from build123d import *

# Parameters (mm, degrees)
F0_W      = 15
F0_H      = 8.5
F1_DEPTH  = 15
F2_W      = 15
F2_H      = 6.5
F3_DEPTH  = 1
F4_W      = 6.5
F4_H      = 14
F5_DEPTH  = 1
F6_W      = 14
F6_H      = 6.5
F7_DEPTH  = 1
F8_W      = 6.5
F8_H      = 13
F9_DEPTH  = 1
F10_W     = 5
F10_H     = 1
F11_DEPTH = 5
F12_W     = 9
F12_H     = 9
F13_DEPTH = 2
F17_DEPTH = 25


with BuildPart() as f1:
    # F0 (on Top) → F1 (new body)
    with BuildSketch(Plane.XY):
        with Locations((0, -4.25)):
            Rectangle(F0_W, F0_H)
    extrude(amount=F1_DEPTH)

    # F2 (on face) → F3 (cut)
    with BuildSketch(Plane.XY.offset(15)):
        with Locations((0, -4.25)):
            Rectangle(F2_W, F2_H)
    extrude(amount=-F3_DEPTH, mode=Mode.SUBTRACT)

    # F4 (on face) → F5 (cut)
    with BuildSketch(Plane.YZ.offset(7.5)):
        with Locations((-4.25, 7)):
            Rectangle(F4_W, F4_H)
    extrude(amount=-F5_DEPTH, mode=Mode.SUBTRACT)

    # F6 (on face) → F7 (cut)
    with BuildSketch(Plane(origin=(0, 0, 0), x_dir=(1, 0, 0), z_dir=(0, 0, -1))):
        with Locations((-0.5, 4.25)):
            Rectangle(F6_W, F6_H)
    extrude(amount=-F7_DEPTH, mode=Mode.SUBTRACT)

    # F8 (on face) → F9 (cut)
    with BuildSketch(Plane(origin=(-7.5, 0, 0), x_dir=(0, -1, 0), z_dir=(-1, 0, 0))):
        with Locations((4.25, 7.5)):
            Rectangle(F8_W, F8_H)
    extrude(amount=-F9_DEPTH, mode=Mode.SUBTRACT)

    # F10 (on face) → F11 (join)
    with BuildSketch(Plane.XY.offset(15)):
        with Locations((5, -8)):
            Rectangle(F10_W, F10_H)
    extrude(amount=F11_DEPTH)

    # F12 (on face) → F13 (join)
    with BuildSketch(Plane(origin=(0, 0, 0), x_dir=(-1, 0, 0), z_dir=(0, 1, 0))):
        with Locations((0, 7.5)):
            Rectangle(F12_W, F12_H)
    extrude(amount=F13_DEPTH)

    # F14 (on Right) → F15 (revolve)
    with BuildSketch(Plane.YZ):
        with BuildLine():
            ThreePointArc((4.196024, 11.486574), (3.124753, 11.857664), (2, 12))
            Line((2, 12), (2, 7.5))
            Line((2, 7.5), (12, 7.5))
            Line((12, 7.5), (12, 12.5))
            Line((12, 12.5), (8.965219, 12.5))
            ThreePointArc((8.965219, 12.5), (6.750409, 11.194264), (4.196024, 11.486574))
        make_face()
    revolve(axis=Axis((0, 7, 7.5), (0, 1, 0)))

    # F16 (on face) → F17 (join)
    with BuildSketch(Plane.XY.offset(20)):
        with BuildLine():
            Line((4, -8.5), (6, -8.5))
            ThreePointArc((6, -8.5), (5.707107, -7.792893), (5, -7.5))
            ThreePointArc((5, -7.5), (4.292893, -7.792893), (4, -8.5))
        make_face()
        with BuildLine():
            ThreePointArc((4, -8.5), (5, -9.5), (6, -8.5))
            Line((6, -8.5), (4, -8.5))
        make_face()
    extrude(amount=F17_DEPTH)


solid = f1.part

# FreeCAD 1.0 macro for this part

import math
import FreeCAD as App
import Part
import Sketcher
from FreeCAD import Vector
Q = App.Units.Quantity

doc = App.newDocument("Part")
body = doc.addObject("PartDesign::Body", "Body")

# Sketch on XY plane
sketch1 = body.newObject("Sketcher::SketchObject", "Sketch")
sketch1.AttachmentSupport = (doc.getObject("XY_Plane"), [""])
sketch1.MapMode = "FlatFace"
sketch1.addGeometry(Part.LineSegment(Vector(-8, 0, 0), Vector(-8, -8, 0)), False)
sketch1.addGeometry(Part.LineSegment(Vector(-8, -8, 0), Vector(8, -8, 0)), False)
sketch1.addGeometry(Part.LineSegment(Vector(8, -8, 0), Vector(8, 0, 0)), False)
sketch1.addGeometry(Part.LineSegment(Vector(8, 0, 0), Vector(-8, 0, 0)), False)
sketch1.addConstraint(Sketcher.Constraint("Coincident", 0, 2, 1, 1))
sketch1.addConstraint(Sketcher.Constraint("Coincident", 1, 2, 2, 1))
sketch1.addConstraint(Sketcher.Constraint("Coincident", 2, 2, 3, 1))
sketch1.addConstraint(Sketcher.Constraint("Coincident", 3, 2, 0, 1))
sketch1.addConstraint(Sketcher.Constraint("Vertical", 0))
sketch1.addConstraint(Sketcher.Constraint("Horizontal", 1))
sketch1.addConstraint(Sketcher.Constraint("Vertical", 2))
sketch1.addConstraint(Sketcher.Constraint("Horizontal", 3))
sketch1.addConstraint(Sketcher.Constraint("Symmetric", 2, 2, 3, 2, -1, 1))
sketch1.addConstraint(Sketcher.Constraint("DistanceX", 1, 1, 1, 2, Q("15 mm")))
sketch1.addConstraint(Sketcher.Constraint("DistanceY", 0, 2, 0, 1, Q("8.5 mm")))
pad1 = body.newObject("PartDesign::Pad", "Pad")
pad1.Profile = sketch1
pad1.Length = 15

# Sketch on XY plane
sketch2 = body.newObject("Sketcher::SketchObject", "Sketch001")
sketch2.AttachmentSupport = (doc.getObject("XY_Plane"), [""])
sketch2.MapMode = "FlatFace"
sketch2.AttachmentOffset = App.Placement(Vector(0, 0, 15), App.Rotation())
sketch2.addGeometry(Part.LineSegment(Vector(-8, -1, 0), Vector(-8, -8, 0)), False)
sketch2.addGeometry(Part.LineSegment(Vector(-8, -8, 0), Vector(8, -8, 0)), False)
sketch2.addGeometry(Part.LineSegment(Vector(8, -8, 0), Vector(8, -1, 0)), False)
sketch2.addGeometry(Part.LineSegment(Vector(8, -1, 0), Vector(-8, -1, 0)), False)
sketch2.addConstraint(Sketcher.Constraint("Coincident", 0, 2, 1, 1))
sketch2.addConstraint(Sketcher.Constraint("Coincident", 1, 2, 2, 1))
sketch2.addConstraint(Sketcher.Constraint("Coincident", 2, 2, 3, 1))
sketch2.addConstraint(Sketcher.Constraint("Coincident", 3, 2, 0, 1))
sketch2.addConstraint(Sketcher.Constraint("Vertical", 0))
sketch2.addConstraint(Sketcher.Constraint("Horizontal", 1))
sketch2.addConstraint(Sketcher.Constraint("Vertical", 2))
sketch2.addConstraint(Sketcher.Constraint("Horizontal", 3))
sketch2.addConstraint(Sketcher.Constraint("DistanceX", 1, 1, 1, 2, Q("15 mm")))
sketch2.addConstraint(Sketcher.Constraint("DistanceY", 0, 2, 0, 1, Q("6.5 mm")))
sketch2.addConstraint(Sketcher.Constraint("DistanceY", 2, 2, -1, 1, Q("1 mm")))
sketch2.addConstraint(Sketcher.Constraint("DistanceX", 0, 2, -1, 1, Q("7.5 mm")))
pocket1 = body.newObject("PartDesign::Pocket", "Pocket")
pocket1.Profile = sketch2
pocket1.Length = 1

# Sketch on YZ plane
sketch3 = body.newObject("Sketcher::SketchObject", "Sketch002")
sketch3.AttachmentSupport = (doc.getObject("YZ_Plane"), [""])
sketch3.MapMode = "FlatFace"
sketch3.AttachmentOffset = App.Placement(Vector(0, 0, 7.5), App.Rotation())
sketch3.addGeometry(Part.LineSegment(Vector(-8, 14, 0), Vector(-8, 0, 0)), False)
sketch3.addGeometry(Part.LineSegment(Vector(-8, 0, 0), Vector(-1, 0, 0)), False)
sketch3.addGeometry(Part.LineSegment(Vector(-1, 0, 0), Vector(-1, 14, 0)), False)
sketch3.addGeometry(Part.LineSegment(Vector(-1, 14, 0), Vector(-8, 14, 0)), False)
sketch3.addConstraint(Sketcher.Constraint("Coincident", 0, 2, 1, 1))
sketch3.addConstraint(Sketcher.Constraint("Coincident", 1, 2, 2, 1))
sketch3.addConstraint(Sketcher.Constraint("Coincident", 2, 2, 3, 1))
sketch3.addConstraint(Sketcher.Constraint("Coincident", 3, 2, 0, 1))
sketch3.addConstraint(Sketcher.Constraint("Vertical", 0))
sketch3.addConstraint(Sketcher.Constraint("Horizontal", 1))
sketch3.addConstraint(Sketcher.Constraint("Vertical", 2))
sketch3.addConstraint(Sketcher.Constraint("Horizontal", 3))
sketch3.addConstraint(Sketcher.Constraint("PointOnObject", 0, 2, -1))
sketch3.addConstraint(Sketcher.Constraint("DistanceY", 0, 2, 0, 1, Q("14 mm")))
sketch3.addConstraint(Sketcher.Constraint("DistanceX", 1, 1, 1, 2, Q("6.5 mm")))
sketch3.addConstraint(Sketcher.Constraint("DistanceX", 1, 2, -1, 1, Q("1 mm")))
pocket2 = body.newObject("PartDesign::Pocket", "Pocket001")
pocket2.Profile = sketch3
pocket2.Length = 1

# Sketch on XY plane
sketch4 = body.newObject("Sketcher::SketchObject", "Sketch003")
sketch4.AttachmentSupport = (doc.getObject("XY_Plane"), [""])
sketch4.MapMode = "FlatFace"
sketch4.addGeometry(Part.LineSegment(Vector(-8, -8, 0), Vector(-8, -1, 0)), False)
sketch4.addGeometry(Part.LineSegment(Vector(-8, -1, 0), Vector(6, -1, 0)), False)
sketch4.addGeometry(Part.LineSegment(Vector(6, -1, 0), Vector(6, -8, 0)), False)
sketch4.addGeometry(Part.LineSegment(Vector(6, -8, 0), Vector(-8, -8, 0)), False)
sketch4.addConstraint(Sketcher.Constraint("Coincident", 0, 2, 1, 1))
sketch4.addConstraint(Sketcher.Constraint("Coincident", 1, 2, 2, 1))
sketch4.addConstraint(Sketcher.Constraint("Coincident", 2, 2, 3, 1))
sketch4.addConstraint(Sketcher.Constraint("Coincident", 3, 2, 0, 1))
sketch4.addConstraint(Sketcher.Constraint("Vertical", 0))
sketch4.addConstraint(Sketcher.Constraint("Horizontal", 1))
sketch4.addConstraint(Sketcher.Constraint("Vertical", 2))
sketch4.addConstraint(Sketcher.Constraint("Horizontal", 3))
sketch4.addConstraint(Sketcher.Constraint("DistanceX", 1, 1, 1, 2, Q("14 mm")))
sketch4.addConstraint(Sketcher.Constraint("DistanceY", 0, 1, 0, 2, Q("6.5 mm")))
sketch4.addConstraint(Sketcher.Constraint("DistanceY", 0, 2, -1, 1, Q("1 mm")))
sketch4.addConstraint(Sketcher.Constraint("DistanceX", 0, 2, -1, 1, Q("7.5 mm")))
pocket3 = body.newObject("PartDesign::Pocket", "Pocket002")
pocket3.Profile = sketch4
pocket3.Length = 1
pocket3.Reversed = True

# Sketch on YZ plane
sketch5 = body.newObject("Sketcher::SketchObject", "Sketch004")
sketch5.AttachmentSupport = (doc.getObject("YZ_Plane"), [""])
sketch5.MapMode = "FlatFace"
sketch5.AttachmentOffset = App.Placement(Vector(0, 0, -7.5), App.Rotation())
sketch5.addGeometry(Part.LineSegment(Vector(-1, 14, 0), Vector(-1, 1, 0)), False)
sketch5.addGeometry(Part.LineSegment(Vector(-1, 1, 0), Vector(-8, 1, 0)), False)
sketch5.addGeometry(Part.LineSegment(Vector(-8, 1, 0), Vector(-8, 14, 0)), False)
sketch5.addGeometry(Part.LineSegment(Vector(-8, 14, 0), Vector(-1, 14, 0)), False)
sketch5.addConstraint(Sketcher.Constraint("Coincident", 0, 2, 1, 1))
sketch5.addConstraint(Sketcher.Constraint("Coincident", 1, 2, 2, 1))
sketch5.addConstraint(Sketcher.Constraint("Coincident", 2, 2, 3, 1))
sketch5.addConstraint(Sketcher.Constraint("Coincident", 3, 2, 0, 1))
sketch5.addConstraint(Sketcher.Constraint("Vertical", 0))
sketch5.addConstraint(Sketcher.Constraint("Horizontal", 1))
sketch5.addConstraint(Sketcher.Constraint("Vertical", 2))
sketch5.addConstraint(Sketcher.Constraint("Horizontal", 3))
sketch5.addConstraint(Sketcher.Constraint("DistanceY", 0, 2, 0, 1, Q("13 mm")))
sketch5.addConstraint(Sketcher.Constraint("DistanceX", 1, 2, 1, 1, Q("6.5 mm")))
sketch5.addConstraint(Sketcher.Constraint("DistanceX", 0, 2, -1, 1, Q("1 mm")))
sketch5.addConstraint(Sketcher.Constraint("DistanceY", -1, 1, 0, 2, Q("1 mm")))
pocket4 = body.newObject("PartDesign::Pocket", "Pocket003")
pocket4.Profile = sketch5
pocket4.Length = 1
pocket4.Reversed = True

# Sketch on XY plane
sketch6 = body.newObject("Sketcher::SketchObject", "Sketch005")
sketch6.AttachmentSupport = (doc.getObject("XY_Plane"), [""])
sketch6.MapMode = "FlatFace"
sketch6.AttachmentOffset = App.Placement(Vector(0, 0, 15), App.Rotation())
sketch6.addGeometry(Part.LineSegment(Vector(2.5, -7.5, 0), Vector(2.5, -8.5, 0)), False)
sketch6.addGeometry(Part.LineSegment(Vector(2.5, -8.5, 0), Vector(7.5, -8.5, 0)), False)
sketch6.addGeometry(Part.LineSegment(Vector(7.5, -8.5, 0), Vector(7.5, -7.5, 0)), False)
sketch6.addGeometry(Part.LineSegment(Vector(7.5, -7.5, 0), Vector(2.5, -7.5, 0)), False)
sketch6.addConstraint(Sketcher.Constraint("Coincident", 0, 2, 1, 1))
sketch6.addConstraint(Sketcher.Constraint("Coincident", 1, 2, 2, 1))
sketch6.addConstraint(Sketcher.Constraint("Coincident", 2, 2, 3, 1))
sketch6.addConstraint(Sketcher.Constraint("Coincident", 3, 2, 0, 1))
sketch6.addConstraint(Sketcher.Constraint("Vertical", 0))
sketch6.addConstraint(Sketcher.Constraint("Horizontal", 1))
sketch6.addConstraint(Sketcher.Constraint("Vertical", 2))
sketch6.addConstraint(Sketcher.Constraint("Horizontal", 3))
sketch6.addConstraint(Sketcher.Constraint("DistanceX", 1, 1, 1, 2, Q("5 mm")))
sketch6.addConstraint(Sketcher.Constraint("DistanceY", 0, 2, 0, 1, Q("1 mm")))
sketch6.addConstraint(Sketcher.Constraint("DistanceX", -1, 1, 0, 2, Q("2.5 mm")))
sketch6.addConstraint(Sketcher.Constraint("DistanceY", 0, 2, -1, 1, Q("8.5 mm")))
pad2 = body.newObject("PartDesign::Pad", "Pad001")
pad2.Profile = sketch6
pad2.Length = 5

# Sketch on XZ plane
sketch7 = body.newObject("Sketcher::SketchObject", "Sketch006")
sketch7.AttachmentSupport = (doc.getObject("XZ_Plane"), [""])
sketch7.MapMode = "FlatFace"
sketch7.addGeometry(Part.LineSegment(Vector(4, 12, 0), Vector(4, 3, 0)), False)
sketch7.addGeometry(Part.LineSegment(Vector(4, 3, 0), Vector(-4, 3, 0)), False)
sketch7.addGeometry(Part.LineSegment(Vector(-4, 3, 0), Vector(-4, 12, 0)), False)
sketch7.addGeometry(Part.LineSegment(Vector(-4, 12, 0), Vector(4, 12, 0)), False)
sketch7.addConstraint(Sketcher.Constraint("Coincident", 0, 2, 1, 1))
sketch7.addConstraint(Sketcher.Constraint("Coincident", 1, 2, 2, 1))
sketch7.addConstraint(Sketcher.Constraint("Coincident", 2, 2, 3, 1))
sketch7.addConstraint(Sketcher.Constraint("Coincident", 3, 2, 0, 1))
sketch7.addConstraint(Sketcher.Constraint("Vertical", 0))
sketch7.addConstraint(Sketcher.Constraint("Horizontal", 1))
sketch7.addConstraint(Sketcher.Constraint("Vertical", 2))
sketch7.addConstraint(Sketcher.Constraint("Horizontal", 3))
sketch7.addConstraint(Sketcher.Constraint("Equal", 3, 0))
sketch7.addConstraint(Sketcher.Constraint("DistanceX", 1, 2, 1, 1, Q("9 mm")))
sketch7.addConstraint(Sketcher.Constraint("DistanceY", -1, 1, 0, 2, Q("3 mm")))
sketch7.addConstraint(Sketcher.Constraint("DistanceX", -1, 1, 0, 2, Q("4.5 mm")))
pad3 = body.newObject("PartDesign::Pad", "Pad002")
pad3.Profile = sketch7
pad3.Length = 2
pad3.Reversed = True

# Sketch on YZ plane
sketch8 = body.newObject("Sketcher::SketchObject", "Sketch007")
sketch8.AttachmentSupport = (doc.getObject("YZ_Plane"), [""])
sketch8.MapMode = "FlatFace"
sketch8.addGeometry(Part.ArcOfCircle(Part.Circle(Vector(1.9, 6.5, 0), Vector(0, 0, 1), 5.5), math.radians(65), math.radians(89)), False)
sketch8.addGeometry(Part.LineSegment(Vector(2, 12, 0), Vector(2, 7.5, 0)), False)
sketch8.addGeometry(Part.LineSegment(Vector(2, 7.5, 0), Vector(12, 7.5, 0)), False)
sketch8.addGeometry(Part.LineSegment(Vector(12, 7.5, 0), Vector(12, 12.5, 0)), False)
sketch8.addGeometry(Part.LineSegment(Vector(12, 12.5, 0), Vector(9, 12.5, 0)), False)
sketch8.addGeometry(Part.ArcOfCircle(Part.Circle(Vector(5.9, 15.2, 0), Vector(0, 0, 1), 4), math.radians(-115), math.radians(-41)), False)
sketch8.addGeometry(Part.LineSegment(Vector(1.9, 7.5, 0), Vector(12, 7.5, 0)), True)  # axis
sketch8.addConstraint(Sketcher.Constraint("Coincident", 0, 2, 1, 1))
sketch8.addConstraint(Sketcher.Constraint("Coincident", 1, 2, 2, 1))
sketch8.addConstraint(Sketcher.Constraint("Coincident", 2, 2, 3, 1))
sketch8.addConstraint(Sketcher.Constraint("Coincident", 3, 2, 4, 1))
sketch8.addConstraint(Sketcher.Constraint("Coincident", 4, 2, 5, 2))
sketch8.addConstraint(Sketcher.Constraint("Tangent", 5, 1, 0, 1))
sketch8.addConstraint(Sketcher.Constraint("Vertical", 1))
sketch8.addConstraint(Sketcher.Constraint("Horizontal", 2))
sketch8.addConstraint(Sketcher.Constraint("Vertical", 3))
sketch8.addConstraint(Sketcher.Constraint("Horizontal", 4))
sketch8.addConstraint(Sketcher.Constraint("Horizontal", 6))
sketch8.addConstraint(Sketcher.Constraint("Coincident", 6, 2, 2, 2))
sketch8.addConstraint(Sketcher.Constraint("Vertical", 0, 3, 6, 1))
sketch8.addConstraint(Sketcher.Constraint("DistanceX", 2, 1, 2, 2, Q("10 mm")))
sketch8.addConstraint(Sketcher.Constraint("DistanceY", 3, 1, 3, 2, Q("5 mm")))
sketch8.addConstraint(Sketcher.Constraint("DistanceY", 1, 2, 1, 1, Q("4.5 mm")))
sketch8.addConstraint(Sketcher.Constraint("DistanceX", -1, 1, 0, 2, Q("2 mm")))
sketch8.addConstraint(Sketcher.Constraint("DistanceY", -1, 1, 0, 2, Q("12 mm")))
sketch8.addConstraint(Sketcher.Constraint("Radius", 0, Q("5.471283 mm")))
sketch8.addConstraint(Sketcher.Constraint("Radius", 5, Q("4.046166 mm")))
sketch8.addConstraint(Sketcher.Constraint("DistanceX", 4, 2, 4, 1, Q("3.034781 mm")))
sketch8.addConstraint(Sketcher.Constraint("DistanceX", -1, 1, 5, 3, Q("5.9094 mm")))
revolution = body.newObject("PartDesign::Revolution", "Revolution")
revolution.Profile = sketch8
revolution.ReferenceAxis = (sketch8, ["Axis0"])
revolution.Angle = 360

# Sketch on XY plane
sketch9 = body.newObject("Sketcher::SketchObject", "Sketch008")
sketch9.AttachmentSupport = (doc.getObject("XY_Plane"), [""])
sketch9.MapMode = "FlatFace"
sketch9.AttachmentOffset = App.Placement(Vector(0, 0, 20), App.Rotation())
sketch9.addGeometry(Part.ArcOfCircle(Part.Circle(Vector(5, -8.5, 0), Vector(0, 0, 1), 1), math.radians(0), math.radians(90)), False)
sketch9.addGeometry(Part.ArcOfCircle(Part.Circle(Vector(5, -8.5, 0), Vector(0, 0, 1), 1), math.radians(90), math.radians(180)), False)
sketch9.addGeometry(Part.ArcOfCircle(Part.Circle(Vector(5, -8.5, 0), Vector(0, 0, 1), 1), math.radians(180), math.radians(360)), False)
sketch9.addConstraint(Sketcher.Constraint("Tangent", 0, 2, 1, 1))
sketch9.addConstraint(Sketcher.Constraint("Tangent", 1, 2, 2, 1))
sketch9.addConstraint(Sketcher.Constraint("Tangent", 2, 2, 0, 1))
sketch9.addConstraint(Sketcher.Constraint("Horizontal", 2, 3, 1, 2))
sketch9.addConstraint(Sketcher.Constraint("Horizontal", 1, 2, 2, 2))
sketch9.addConstraint(Sketcher.Constraint("Vertical", 2, 3, 0, 2))
sketch9.addConstraint(Sketcher.Constraint("Radius", 0, Q("0.999999 mm")))
sketch9.addConstraint(Sketcher.Constraint("DistanceX", -1, 1, 0, 3, Q("5.000001 mm")))
sketch9.addConstraint(Sketcher.Constraint("DistanceY", 0, 3, -1, 1, Q("8.499999 mm")))
pad4 = body.newObject("PartDesign::Pad", "Pad003")
pad4.Profile = sketch9
pad4.Length = 25

doc.recompute()
